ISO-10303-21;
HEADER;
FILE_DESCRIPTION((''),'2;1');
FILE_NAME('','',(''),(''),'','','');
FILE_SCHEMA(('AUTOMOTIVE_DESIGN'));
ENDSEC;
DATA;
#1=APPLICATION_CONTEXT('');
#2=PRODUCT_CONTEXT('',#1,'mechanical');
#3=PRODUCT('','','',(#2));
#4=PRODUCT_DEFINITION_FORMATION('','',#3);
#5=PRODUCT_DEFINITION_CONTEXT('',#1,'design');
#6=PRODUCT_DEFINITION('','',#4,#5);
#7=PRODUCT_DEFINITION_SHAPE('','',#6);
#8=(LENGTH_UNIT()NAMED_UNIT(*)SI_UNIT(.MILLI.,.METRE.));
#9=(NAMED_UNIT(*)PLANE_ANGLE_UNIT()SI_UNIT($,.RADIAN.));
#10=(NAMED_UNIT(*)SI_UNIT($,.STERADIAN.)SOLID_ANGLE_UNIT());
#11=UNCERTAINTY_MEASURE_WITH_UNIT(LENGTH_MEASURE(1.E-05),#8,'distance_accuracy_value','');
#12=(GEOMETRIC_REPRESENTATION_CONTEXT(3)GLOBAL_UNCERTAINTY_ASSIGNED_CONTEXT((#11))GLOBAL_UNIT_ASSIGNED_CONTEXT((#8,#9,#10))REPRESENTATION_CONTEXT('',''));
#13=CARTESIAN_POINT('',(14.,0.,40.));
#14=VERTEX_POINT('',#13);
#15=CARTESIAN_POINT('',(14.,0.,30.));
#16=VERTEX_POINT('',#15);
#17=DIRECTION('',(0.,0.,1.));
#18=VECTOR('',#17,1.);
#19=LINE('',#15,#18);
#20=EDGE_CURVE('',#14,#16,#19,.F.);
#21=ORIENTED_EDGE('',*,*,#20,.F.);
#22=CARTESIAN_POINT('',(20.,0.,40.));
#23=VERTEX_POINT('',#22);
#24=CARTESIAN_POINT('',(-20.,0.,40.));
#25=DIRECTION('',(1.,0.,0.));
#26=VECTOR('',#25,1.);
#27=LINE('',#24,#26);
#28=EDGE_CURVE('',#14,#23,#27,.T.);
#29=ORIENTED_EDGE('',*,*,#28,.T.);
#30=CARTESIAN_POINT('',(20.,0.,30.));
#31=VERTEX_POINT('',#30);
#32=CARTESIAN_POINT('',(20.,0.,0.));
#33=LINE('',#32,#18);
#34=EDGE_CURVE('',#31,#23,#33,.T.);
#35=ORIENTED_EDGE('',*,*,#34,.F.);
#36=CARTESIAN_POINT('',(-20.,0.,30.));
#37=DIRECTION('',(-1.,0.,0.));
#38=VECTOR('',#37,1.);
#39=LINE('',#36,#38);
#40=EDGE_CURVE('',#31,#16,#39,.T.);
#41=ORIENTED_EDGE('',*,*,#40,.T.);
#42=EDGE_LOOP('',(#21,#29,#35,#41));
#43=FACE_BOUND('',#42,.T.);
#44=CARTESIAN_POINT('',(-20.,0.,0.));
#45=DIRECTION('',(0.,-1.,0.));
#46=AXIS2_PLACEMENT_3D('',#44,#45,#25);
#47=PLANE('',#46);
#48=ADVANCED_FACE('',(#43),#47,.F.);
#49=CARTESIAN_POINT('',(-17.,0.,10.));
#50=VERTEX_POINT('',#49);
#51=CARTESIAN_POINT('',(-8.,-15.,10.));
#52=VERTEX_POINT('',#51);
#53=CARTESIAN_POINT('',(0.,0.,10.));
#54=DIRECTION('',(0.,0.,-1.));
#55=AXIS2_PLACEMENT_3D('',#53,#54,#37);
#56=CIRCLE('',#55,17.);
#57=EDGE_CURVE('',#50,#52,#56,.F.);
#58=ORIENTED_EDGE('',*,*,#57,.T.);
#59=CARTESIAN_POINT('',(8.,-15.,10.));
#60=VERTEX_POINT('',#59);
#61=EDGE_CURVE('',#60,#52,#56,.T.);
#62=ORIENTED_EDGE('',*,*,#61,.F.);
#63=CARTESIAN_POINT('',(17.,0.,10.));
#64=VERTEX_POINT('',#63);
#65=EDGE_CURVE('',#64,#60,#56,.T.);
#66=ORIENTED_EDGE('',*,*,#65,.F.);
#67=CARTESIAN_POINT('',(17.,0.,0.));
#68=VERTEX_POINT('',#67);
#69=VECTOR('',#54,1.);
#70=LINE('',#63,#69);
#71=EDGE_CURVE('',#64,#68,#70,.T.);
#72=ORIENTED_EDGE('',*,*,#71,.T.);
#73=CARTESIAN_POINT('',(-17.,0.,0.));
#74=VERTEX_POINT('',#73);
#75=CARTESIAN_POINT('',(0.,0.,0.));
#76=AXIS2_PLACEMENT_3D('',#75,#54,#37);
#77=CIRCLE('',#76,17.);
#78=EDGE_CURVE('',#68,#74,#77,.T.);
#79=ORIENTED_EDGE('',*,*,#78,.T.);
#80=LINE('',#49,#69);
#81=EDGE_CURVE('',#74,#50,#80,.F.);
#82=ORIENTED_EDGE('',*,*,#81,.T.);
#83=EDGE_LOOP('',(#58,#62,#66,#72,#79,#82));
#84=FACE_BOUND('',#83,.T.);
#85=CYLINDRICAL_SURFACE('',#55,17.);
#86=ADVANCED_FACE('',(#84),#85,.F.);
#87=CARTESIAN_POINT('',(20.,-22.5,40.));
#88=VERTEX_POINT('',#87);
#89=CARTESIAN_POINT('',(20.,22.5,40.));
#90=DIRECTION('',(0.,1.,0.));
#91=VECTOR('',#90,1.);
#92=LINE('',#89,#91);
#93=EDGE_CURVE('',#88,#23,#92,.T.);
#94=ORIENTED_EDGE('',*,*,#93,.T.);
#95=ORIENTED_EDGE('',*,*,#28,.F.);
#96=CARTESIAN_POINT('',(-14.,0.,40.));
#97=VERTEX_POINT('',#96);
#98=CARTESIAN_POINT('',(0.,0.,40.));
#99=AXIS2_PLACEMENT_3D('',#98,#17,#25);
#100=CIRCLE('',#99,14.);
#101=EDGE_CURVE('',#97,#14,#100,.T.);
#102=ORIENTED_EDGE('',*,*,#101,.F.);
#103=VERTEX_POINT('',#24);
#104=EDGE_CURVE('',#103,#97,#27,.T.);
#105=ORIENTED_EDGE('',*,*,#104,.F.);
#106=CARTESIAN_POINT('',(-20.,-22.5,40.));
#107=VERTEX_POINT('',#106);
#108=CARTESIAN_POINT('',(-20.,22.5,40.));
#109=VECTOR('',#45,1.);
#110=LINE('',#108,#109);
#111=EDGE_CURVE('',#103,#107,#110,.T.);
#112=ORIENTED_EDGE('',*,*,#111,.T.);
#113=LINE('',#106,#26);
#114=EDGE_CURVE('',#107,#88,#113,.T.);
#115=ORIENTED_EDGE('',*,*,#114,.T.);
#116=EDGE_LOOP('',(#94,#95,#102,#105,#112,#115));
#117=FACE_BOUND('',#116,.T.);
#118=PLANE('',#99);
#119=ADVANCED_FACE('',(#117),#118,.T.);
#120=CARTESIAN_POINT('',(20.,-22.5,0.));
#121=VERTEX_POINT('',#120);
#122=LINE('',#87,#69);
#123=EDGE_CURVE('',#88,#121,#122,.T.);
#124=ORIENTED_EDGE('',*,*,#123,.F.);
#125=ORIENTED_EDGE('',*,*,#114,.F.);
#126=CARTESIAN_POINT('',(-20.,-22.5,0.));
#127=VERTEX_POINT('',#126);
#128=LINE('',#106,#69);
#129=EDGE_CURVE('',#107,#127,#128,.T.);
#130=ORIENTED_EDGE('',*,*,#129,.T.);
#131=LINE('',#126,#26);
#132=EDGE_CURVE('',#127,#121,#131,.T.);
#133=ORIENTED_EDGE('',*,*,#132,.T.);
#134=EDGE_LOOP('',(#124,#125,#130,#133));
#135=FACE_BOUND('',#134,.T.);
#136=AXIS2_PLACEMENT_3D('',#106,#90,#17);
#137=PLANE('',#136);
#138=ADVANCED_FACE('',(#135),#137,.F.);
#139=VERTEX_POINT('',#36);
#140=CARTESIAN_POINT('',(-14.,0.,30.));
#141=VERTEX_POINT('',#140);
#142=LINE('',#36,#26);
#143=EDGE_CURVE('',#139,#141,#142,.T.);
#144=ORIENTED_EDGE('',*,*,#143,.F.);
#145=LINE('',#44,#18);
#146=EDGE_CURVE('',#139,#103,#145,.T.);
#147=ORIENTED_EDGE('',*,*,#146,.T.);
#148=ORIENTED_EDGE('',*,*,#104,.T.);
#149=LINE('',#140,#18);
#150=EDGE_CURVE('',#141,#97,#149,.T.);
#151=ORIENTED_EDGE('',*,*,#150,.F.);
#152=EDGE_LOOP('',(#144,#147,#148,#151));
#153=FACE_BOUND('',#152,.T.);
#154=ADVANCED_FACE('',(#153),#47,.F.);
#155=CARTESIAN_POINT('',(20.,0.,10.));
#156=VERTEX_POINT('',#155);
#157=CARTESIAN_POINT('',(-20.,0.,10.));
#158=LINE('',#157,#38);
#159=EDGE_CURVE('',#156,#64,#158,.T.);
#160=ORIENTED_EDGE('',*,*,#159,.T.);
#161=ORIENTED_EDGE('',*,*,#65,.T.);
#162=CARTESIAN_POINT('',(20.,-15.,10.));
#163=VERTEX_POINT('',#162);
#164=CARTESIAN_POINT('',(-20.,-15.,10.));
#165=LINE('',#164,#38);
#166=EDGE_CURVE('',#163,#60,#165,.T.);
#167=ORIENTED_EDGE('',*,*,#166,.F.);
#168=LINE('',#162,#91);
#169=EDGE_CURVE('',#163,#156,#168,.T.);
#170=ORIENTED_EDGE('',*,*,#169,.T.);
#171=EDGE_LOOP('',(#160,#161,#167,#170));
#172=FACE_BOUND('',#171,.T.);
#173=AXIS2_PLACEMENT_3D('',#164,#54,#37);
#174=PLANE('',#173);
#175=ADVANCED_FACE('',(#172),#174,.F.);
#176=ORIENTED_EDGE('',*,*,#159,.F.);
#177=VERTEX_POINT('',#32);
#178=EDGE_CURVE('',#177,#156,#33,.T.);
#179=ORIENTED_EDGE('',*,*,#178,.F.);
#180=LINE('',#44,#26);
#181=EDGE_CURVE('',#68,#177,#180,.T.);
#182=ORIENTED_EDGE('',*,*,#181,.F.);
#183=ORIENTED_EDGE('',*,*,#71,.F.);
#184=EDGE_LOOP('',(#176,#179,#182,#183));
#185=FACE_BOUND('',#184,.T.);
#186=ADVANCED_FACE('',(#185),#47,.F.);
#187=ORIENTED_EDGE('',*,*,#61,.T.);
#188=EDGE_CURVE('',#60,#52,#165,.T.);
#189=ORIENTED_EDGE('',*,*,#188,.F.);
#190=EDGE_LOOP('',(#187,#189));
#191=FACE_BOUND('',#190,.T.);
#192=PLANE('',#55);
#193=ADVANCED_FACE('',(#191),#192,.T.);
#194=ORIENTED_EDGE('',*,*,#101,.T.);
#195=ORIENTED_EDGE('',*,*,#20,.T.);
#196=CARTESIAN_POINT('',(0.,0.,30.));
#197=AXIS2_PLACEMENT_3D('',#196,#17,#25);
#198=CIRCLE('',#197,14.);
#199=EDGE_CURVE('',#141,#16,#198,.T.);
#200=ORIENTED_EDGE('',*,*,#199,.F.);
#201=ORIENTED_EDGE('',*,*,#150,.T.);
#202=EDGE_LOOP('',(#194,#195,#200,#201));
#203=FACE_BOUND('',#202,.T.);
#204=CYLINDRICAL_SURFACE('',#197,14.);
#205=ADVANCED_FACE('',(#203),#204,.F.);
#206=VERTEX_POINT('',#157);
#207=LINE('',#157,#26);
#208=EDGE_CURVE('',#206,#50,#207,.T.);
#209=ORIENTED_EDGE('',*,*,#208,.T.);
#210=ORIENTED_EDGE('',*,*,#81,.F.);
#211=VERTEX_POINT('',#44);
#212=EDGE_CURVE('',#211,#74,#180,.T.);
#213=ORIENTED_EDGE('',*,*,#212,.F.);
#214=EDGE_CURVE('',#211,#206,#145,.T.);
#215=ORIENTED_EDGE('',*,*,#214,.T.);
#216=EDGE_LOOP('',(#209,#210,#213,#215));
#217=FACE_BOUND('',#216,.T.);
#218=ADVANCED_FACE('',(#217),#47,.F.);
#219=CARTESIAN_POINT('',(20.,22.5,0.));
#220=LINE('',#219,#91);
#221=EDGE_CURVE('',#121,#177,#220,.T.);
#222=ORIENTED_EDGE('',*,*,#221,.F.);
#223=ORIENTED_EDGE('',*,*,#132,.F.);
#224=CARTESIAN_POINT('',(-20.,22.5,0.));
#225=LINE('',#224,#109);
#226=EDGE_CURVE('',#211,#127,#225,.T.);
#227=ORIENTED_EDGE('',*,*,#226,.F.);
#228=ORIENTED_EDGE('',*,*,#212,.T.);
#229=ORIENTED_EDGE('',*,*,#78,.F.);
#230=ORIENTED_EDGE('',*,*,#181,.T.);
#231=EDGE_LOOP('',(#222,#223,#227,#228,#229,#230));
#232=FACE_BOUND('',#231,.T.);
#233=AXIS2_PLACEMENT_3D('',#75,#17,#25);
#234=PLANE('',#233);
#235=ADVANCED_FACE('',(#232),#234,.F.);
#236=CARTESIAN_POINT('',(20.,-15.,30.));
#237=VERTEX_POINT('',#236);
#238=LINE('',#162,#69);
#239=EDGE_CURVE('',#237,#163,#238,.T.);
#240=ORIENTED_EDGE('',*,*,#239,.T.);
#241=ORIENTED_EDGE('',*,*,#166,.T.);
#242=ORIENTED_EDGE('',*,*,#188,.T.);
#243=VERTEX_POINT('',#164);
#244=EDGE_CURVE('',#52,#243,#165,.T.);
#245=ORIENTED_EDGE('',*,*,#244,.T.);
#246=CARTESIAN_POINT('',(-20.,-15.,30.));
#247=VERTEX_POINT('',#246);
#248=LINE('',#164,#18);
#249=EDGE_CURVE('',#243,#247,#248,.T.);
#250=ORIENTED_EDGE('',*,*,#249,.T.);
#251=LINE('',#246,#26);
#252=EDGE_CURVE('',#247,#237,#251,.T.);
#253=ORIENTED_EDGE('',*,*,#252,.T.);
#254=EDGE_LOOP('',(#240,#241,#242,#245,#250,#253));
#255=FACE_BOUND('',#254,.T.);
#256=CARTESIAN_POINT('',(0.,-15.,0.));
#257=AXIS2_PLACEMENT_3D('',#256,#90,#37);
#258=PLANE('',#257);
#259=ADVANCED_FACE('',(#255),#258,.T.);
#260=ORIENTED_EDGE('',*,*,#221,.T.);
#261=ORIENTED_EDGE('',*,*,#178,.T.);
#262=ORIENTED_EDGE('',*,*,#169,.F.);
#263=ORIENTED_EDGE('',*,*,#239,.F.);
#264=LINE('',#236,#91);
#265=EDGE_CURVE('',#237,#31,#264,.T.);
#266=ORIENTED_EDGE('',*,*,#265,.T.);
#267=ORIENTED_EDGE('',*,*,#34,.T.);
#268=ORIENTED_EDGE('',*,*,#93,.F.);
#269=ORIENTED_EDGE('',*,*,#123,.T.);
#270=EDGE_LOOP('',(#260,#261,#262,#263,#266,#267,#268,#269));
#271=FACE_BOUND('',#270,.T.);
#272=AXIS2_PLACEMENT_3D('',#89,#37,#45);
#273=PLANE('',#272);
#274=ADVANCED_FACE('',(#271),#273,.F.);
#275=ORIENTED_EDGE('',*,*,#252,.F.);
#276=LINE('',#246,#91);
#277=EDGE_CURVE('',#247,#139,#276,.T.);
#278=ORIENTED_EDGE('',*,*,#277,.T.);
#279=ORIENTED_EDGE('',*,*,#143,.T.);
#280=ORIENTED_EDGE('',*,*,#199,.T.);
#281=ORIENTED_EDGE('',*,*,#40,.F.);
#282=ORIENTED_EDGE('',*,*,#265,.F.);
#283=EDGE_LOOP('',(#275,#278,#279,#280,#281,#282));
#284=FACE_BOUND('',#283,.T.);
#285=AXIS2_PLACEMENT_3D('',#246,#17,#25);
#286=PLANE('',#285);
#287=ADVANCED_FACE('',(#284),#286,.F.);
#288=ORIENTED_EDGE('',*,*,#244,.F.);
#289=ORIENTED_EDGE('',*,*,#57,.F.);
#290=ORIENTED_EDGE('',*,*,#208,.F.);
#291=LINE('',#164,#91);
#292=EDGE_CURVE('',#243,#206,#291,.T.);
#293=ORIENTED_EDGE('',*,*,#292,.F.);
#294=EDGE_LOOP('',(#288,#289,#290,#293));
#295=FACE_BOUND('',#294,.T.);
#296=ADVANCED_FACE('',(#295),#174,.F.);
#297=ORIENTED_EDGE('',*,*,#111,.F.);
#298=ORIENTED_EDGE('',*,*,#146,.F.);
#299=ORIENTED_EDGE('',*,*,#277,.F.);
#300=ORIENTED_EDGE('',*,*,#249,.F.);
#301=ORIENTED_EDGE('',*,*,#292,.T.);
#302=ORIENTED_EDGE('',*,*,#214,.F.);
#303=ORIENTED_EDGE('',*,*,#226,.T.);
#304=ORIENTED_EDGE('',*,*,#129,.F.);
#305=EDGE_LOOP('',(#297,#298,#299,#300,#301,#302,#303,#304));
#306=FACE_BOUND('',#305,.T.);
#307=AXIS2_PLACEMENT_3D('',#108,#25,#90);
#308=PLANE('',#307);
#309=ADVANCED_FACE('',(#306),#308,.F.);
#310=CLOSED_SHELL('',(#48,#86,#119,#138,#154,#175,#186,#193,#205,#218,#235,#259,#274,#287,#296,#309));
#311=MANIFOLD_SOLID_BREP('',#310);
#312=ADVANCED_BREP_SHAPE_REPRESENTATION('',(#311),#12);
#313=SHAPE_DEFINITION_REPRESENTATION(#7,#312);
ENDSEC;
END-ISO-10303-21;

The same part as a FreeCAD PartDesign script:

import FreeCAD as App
import Part
import Sketcher
Q = App.Units.Quantity


def add_polygon(sketch, points):
    """Adds a closed chain of lines whose ends are joined by coincident constraints."""
    first, n = sketch.GeometryCount, len(points)
    for a, b in zip(points, points[1:] + points[:1]):
        sketch.addGeometry(Part.LineSegment(App.Vector(*a, 0), App.Vector(*b, 0)), False)
    for i in range(n):
        sketch.addConstraint(Sketcher.Constraint("Coincident", first + i, 2, first + (i + 1) % n, 1))

doc = App.newDocument("Part")
params = doc.addObject("Spreadsheet::Sheet", "Params")
for row, (alias, value) in enumerate([
    ("sketch1_width", "40 mm"),
    ("sketch1_height", "45 mm"),
    ("pad1_length", "40 mm"),
    ("sketch2_diameter", "34 mm"),
    ("pocket1_length", "10 mm"),
    ("sketch3_diameter", "28 mm"),
    ("pocket2_length", "10 mm"),
    ("sketch4_width", "40 mm"),
    ("sketch4_height", "22.5 mm"),
    ("sketch5_width", "40 mm"),
    ("sketch5_height", "20 mm"),
    ("pocket4_length", "15 mm"),
], start=1):
    params.set(f"A{row}", alias)
    params.set(f"B{row}", "=" + value)
    params.setAlias(f"B{row}", alias)

body = doc.addObject("PartDesign::Body", "Body")

# Sketch on XY plane
sketch1 = body.newObject("Sketcher::SketchObject", "Sketch")
sketch1.AttachmentSupport = (doc.getObject("XY_Plane"), [""])
sketch1.MapMode = "FlatFace"
add_polygon(sketch1, [(-20, 22), (-20, -22), (20, -22), (20, 22)])  # lines 0-3
sketch1.addConstraint(Sketcher.Constraint("Vertical", 0))
sketch1.addConstraint(Sketcher.Constraint("Horizontal", 1))
sketch1.addConstraint(Sketcher.Constraint("Vertical", 2))
sketch1.addConstraint(Sketcher.Constraint("Horizontal", 3))
sketch1.addConstraint(Sketcher.Constraint("Symmetric", 0, 2, 2, 2, -1, 1))
sketch1.addConstraint(Sketcher.Constraint("DistanceX", 1, 1, 1, 2, Q("40 mm")))
sketch1.addConstraint(Sketcher.Constraint("DistanceY", 0, 2, 0, 1, Q("45 mm")))
sketch1.setExpression("Constraints[9]", "Params.sketch1_width")
sketch1.setExpression("Constraints[10]", "Params.sketch1_height")
pad1 = body.newObject("PartDesign::Pad", "Pad")
pad1.Profile = sketch1
pad1.setExpression("Length", "Params.pad1_length")

# Sketch on XY plane
sketch2 = body.newObject("Sketcher::SketchObject", "Sketch001")
sketch2.AttachmentSupport = (doc.getObject("XY_Plane"), [""])
sketch2.MapMode = "FlatFace"
sketch2.addGeometry(Part.Circle(App.Vector(0, 0, 0), App.Vector(0, 0, 1), 17), False)
sketch2.addConstraint(Sketcher.Constraint("Coincident", 0, 3, -1, 1))
sketch2.addConstraint(Sketcher.Constraint("Diameter", 0, Q("34 mm")))
sketch2.setExpression("Constraints[1]", "Params.sketch2_diameter")
pocket1 = body.newObject("PartDesign::Pocket", "Pocket")
pocket1.Profile = sketch2
pocket1.setExpression("Length", "Params.pocket1_length")
pocket1.Reversed = True

# Sketch on XY plane
sketch3 = body.newObject("Sketcher::SketchObject", "Sketch002")
sketch3.AttachmentSupport = (doc.getObject("XY_Plane"), [""])
sketch3.MapMode = "FlatFace"
sketch3.AttachmentOffset = App.Placement(App.Vector(0, 0, 40), App.Rotation())
sketch3.addGeometry(Part.Circle(App.Vector(0, 0, 0), App.Vector(0, 0, 1), 14), False)
sketch3.addConstraint(Sketcher.Constraint("Coincident", 0, 3, -1, 1))
sketch3.addConstraint(Sketcher.Constraint("Diameter", 0, Q("28 mm")))
sketch3.setExpression("Constraints[1]", "Params.sketch3_diameter")
pocket2 = body.newObject("PartDesign::Pocket", "Pocket001")
pocket2.Profile = sketch3
pocket2.setExpression("Length", "Params.pocket2_length")

# Sketch on XY plane
sketch4 = body.newObject("Sketcher::SketchObject", "Sketch003")
sketch4.AttachmentSupport = (doc.getObject("XY_Plane"), [""])
sketch4.MapMode = "FlatFace"
sketch4.AttachmentOffset = App.Placement(App.Vector(0, 0, 40), App.Rotation())
add_polygon(sketch4, [(-20, 22), (-20, 0), (20, 0), (20, 22)])  # lines 0-3
sketch4.addConstraint(Sketcher.Constraint("Vertical", 0))
sketch4.addConstraint(Sketcher.Constraint("Horizontal", 1))
sketch4.addConstraint(Sketcher.Constraint("Vertical", 2))
sketch4.addConstraint(Sketcher.Constraint("Horizontal", 3))
sketch4.addConstraint(Sketcher.Constraint("Symmetric", 0, 2, 1, 2, -1, 1))
sketch4.addConstraint(Sketcher.Constraint("DistanceX", 1, 1, 1, 2, Q("40 mm")))
sketch4.addConstraint(Sketcher.Constraint("DistanceY", 0, 2, 0, 1, Q("22.5 mm")))
sketch4.setExpression("Constraints[9]", "Params.sketch4_width")
sketch4.setExpression("Constraints[10]", "Params.sketch4_height")
pocket3 = body.newObject("PartDesign::Pocket", "Pocket002")
pocket3.Profile = sketch4
pocket3.Type = "ThroughAll"

# Sketch on XZ plane
sketch5 = body.newObject("Sketcher::SketchObject", "Sketch004")
sketch5.AttachmentSupport = (doc.getObject("XZ_Plane"), [""])
sketch5.MapMode = "FlatFace"
add_polygon(sketch5, [(-20, 10), (-20, 30), (20, 30), (20, 10)])  # lines 0-3
sketch5.addConstraint(Sketcher.Constraint("Vertical", 0))
sketch5.addConstraint(Sketcher.Constraint("Horizontal", 1))
sketch5.addConstraint(Sketcher.Constraint("Vertical", 2))
sketch5.addConstraint(Sketcher.Constraint("Horizontal", 3))
sketch5.addConstraint(Sketcher.Constraint("DistanceX", 1, 1, 1, 2, Q("40 mm")))
sketch5.addConstraint(Sketcher.Constraint("DistanceY", 0, 1, 0, 2, Q("20 mm")))
sketch5.addConstraint(Sketcher.Constraint("DistanceX", 0, 2, -1, 1, Q("20 mm")))
sketch5.addConstraint(Sketcher.Constraint("DistanceY", -1, 1, 0, 2, Q("30 mm")))
sketch5.setExpression("Constraints[8]", "Params.sketch5_width")
sketch5.setExpression("Constraints[9]", "Params.sketch5_height")
pocket4 = body.newObject("PartDesign::Pocket", "Pocket003")
pocket4.Profile = sketch5
pocket4.setExpression("Length", "Params.pocket4_length")
pocket4.Reversed = True

doc.recompute()
